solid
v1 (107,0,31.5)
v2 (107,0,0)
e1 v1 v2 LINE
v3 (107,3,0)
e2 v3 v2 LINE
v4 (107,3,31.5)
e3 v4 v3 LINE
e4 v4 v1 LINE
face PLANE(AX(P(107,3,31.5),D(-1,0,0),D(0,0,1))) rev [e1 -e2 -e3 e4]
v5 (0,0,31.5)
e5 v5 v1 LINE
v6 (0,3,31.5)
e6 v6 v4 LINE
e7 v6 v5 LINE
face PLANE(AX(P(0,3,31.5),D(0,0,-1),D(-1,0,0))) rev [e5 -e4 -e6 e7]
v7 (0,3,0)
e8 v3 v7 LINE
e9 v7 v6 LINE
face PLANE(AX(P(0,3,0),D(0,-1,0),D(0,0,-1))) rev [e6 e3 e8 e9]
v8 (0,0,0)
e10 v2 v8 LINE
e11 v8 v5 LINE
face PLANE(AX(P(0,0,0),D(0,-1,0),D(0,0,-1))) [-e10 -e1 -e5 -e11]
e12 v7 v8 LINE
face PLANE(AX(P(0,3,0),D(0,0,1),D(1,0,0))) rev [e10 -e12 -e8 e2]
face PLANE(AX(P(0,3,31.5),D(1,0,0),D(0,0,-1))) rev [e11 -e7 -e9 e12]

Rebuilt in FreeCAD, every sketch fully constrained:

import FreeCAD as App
import Part
import Sketcher

doc = App.newDocument("Part")
body = doc.addObject("PartDesign::Body", "Body")

sketch1 = doc.addObject("Sketcher::SketchObject", "Sketch")
body.addObject(sketch1)
sketch1.AttachmentSupport = (doc.XZ_Plane, [""])
sketch1.MapMode = "FlatFace"
sketch1.addGeometry([
    Part.LineSegment(App.Vector(0, 0, 0), App.Vector(0, 32, 0)),
    Part.LineSegment(App.Vector(0, 32, 0), App.Vector(107, 32, 0)),
    Part.LineSegment(App.Vector(107, 32, 0), App.Vector(107, 0, 0)),
    Part.LineSegment(App.Vector(107, 0, 0), App.Vector(0, 0, 0)),
], False)
sketch1.addConstraint([
    Sketcher.Constraint("Coincident", 0, 2, 1, 1),
    Sketcher.Constraint("Coincident", 1, 2, 2, 1),
    Sketcher.Constraint("Coincident", 2, 2, 3, 1),
    Sketcher.Constraint("Coincident", 3, 2, 0, 1),
    Sketcher.Constraint("Vertical", 0),
    Sketcher.Constraint("Horizontal", 1),
    Sketcher.Constraint("Vertical", 2),
    Sketcher.Constraint("Horizontal", 3),
    Sketcher.Constraint("Coincident", 3, 2, -1, 1),
    Sketcher.Constraint("DistanceX", 1, 1, 1, 2, 107.0),
    Sketcher.Constraint("DistanceY", 0, 1, 0, 2, 31.5),
])
pad1 = doc.addObject("PartDesign::Pad", "Pad")
body.addObject(pad1)
pad1.Profile = sketch1
pad1.Length = 3
pad1.Reversed = True

doc.recompute()
